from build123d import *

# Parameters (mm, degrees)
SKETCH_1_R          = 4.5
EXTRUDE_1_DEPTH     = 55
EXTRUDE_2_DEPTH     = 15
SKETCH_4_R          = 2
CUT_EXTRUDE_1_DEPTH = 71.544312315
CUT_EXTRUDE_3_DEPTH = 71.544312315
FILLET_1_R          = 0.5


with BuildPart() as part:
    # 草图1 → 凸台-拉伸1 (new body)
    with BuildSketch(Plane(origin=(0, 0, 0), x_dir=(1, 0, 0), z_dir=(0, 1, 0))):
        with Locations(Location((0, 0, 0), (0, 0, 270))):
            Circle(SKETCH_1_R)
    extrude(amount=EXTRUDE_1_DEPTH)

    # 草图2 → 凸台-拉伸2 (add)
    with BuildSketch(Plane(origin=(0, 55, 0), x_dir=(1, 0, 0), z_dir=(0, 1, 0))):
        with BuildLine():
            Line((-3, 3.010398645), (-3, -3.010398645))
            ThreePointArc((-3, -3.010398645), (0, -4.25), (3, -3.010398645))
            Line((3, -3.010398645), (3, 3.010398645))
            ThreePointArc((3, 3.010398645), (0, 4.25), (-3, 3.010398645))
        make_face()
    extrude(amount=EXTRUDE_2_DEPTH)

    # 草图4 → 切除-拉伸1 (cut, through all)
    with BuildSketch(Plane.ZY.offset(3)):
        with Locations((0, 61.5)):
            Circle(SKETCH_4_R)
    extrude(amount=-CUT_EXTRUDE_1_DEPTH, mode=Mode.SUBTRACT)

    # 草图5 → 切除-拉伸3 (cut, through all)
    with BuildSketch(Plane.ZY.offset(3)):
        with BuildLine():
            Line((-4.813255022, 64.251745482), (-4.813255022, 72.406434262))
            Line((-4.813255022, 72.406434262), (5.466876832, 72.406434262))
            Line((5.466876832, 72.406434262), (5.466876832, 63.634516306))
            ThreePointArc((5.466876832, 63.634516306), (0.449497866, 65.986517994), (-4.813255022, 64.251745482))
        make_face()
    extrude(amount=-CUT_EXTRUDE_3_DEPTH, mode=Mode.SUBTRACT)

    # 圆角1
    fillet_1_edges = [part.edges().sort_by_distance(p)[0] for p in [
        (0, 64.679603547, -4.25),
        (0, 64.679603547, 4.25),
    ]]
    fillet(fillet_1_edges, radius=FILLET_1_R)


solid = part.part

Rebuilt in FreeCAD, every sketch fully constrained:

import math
import FreeCAD as App
import Part
import Sketcher
Q = App.Units.Quantity


def edges_at(feature, points):
    """Names of the edges that pass closest to the given points."""
    edges = feature.Shape.Edges
    near = lambda p: min(range(len(edges)), key=lambda i: edges[i].distToShape(Part.Vertex(*p))[0])
    return sorted({f"Edge{near(p) + 1}" for p in points})

doc = App.newDocument("Part")
params = doc.addObject("Spreadsheet::Sheet", "Params")
for row, (alias, value) in enumerate([
    ("sketch1_diameter", "9 mm"),
    ("pad1_length", "55 mm"),
    ("sketch2_radius", "4.25 mm"),
    ("pad2_length", "15 mm"),
    ("sketch3_diameter", "4 mm"),
    ("sketch4_radius", "7.5 mm"),
    ("fillet_radius", "0.5 mm"),
], start=1):
    params.set(f"A{row}", alias)
    params.set(f"B{row}", "=" + value)
    params.setAlias(f"B{row}", alias)

body = doc.addObject("PartDesign::Body", "Body")

sketch1 = doc.addObject("Sketcher::SketchObject", "Sketch")
body.addObject(sketch1)
sketch1.AttachmentSupport = (doc.XZ_Plane, [""])
sketch1.MapMode = "FlatFace"
sketch1.addGeometry(Part.Circle(App.Vector(0, 0, 0), App.Vector(0, 0, 1), 4.5), False)
sketch1.addConstraint([
    Sketcher.Constraint("Coincident", 0, 3, -1, 1),
    Sketcher.Constraint("Diameter", 0, Q("9 mm")),
])
sketch1.setExpression("Constraints[1]", "Params.sketch1_diameter")
pad1 = doc.addObject("PartDesign::Pad", "Pad")
body.addObject(pad1)
pad1.Profile = sketch1
pad1.setExpression("Length", "Params.pad1_length")
pad1.Reversed = True

sketch2 = doc.addObject("Sketcher::SketchObject", "Sketch001")
body.addObject(sketch2)
sketch2.AttachmentSupport = (doc.XZ_Plane, [""])
sketch2.MapMode = "FlatFace"
sketch2.AttachmentOffset = App.Placement(App.Vector(0, 0, -55), App.Rotation())
sketch2.addGeometry([
    Part.LineSegment(App.Vector(-3, -3.010399, 0), App.Vector(-3, 3.010399, 0)),
    Part.ArcOfCircle(Part.Circle(App.Vector(0, 0, 0), App.Vector(0, 0, 1), 4.25), math.radians(45.099128), math.radians(134.900872)),
    Part.LineSegment(App.Vector(3, 3.010399, 0), App.Vector(3, -3.010399, 0)),
    Part.ArcOfCircle(Part.Circle(App.Vector(0, 0, 0), App.Vector(0, 0, 1), 4.25), math.radians(-134.900872), math.radians(-45.099128)),
], False)
sketch2.addConstraint([
    Sketcher.Constraint("Coincident", 0, 2, 1, 2),
    Sketcher.Constraint("Coincident", 1, 1, 2, 1),
    Sketcher.Constraint("Coincident", 2, 2, 3, 2),
    Sketcher.Constraint("Coincident", 3, 1, 0, 1),
    Sketcher.Constraint("Vertical", 0),
    Sketcher.Constraint("Vertical", 2),
    Sketcher.Constraint("Coincident", 1, 3, -1, 1),
    Sketcher.Constraint("Coincident", 3, 3, -1, 1),
    Sketcher.Constraint("Equal", 1, 3),
    Sketcher.Constraint("Horizontal", 0, 2, 1, 1),
    Sketcher.Constraint("Radius", 1, Q("4.25 mm")),
    Sketcher.Constraint("DistanceX", 0, 2, -1, 1, Q("3 mm")),
])
sketch2.setExpression("Constraints[10]", "Params.sketch2_radius")
pad2 = doc.addObject("PartDesign::Pad", "Pad001")
body.addObject(pad2)
pad2.Profile = sketch2
pad2.setExpression("Length", "Params.pad2_length")
pad2.Reversed = True

sketch3 = doc.addObject("Sketcher::SketchObject", "Sketch002")
body.addObject(sketch3)
sketch3.AttachmentSupport = (doc.YZ_Plane, [""])
sketch3.MapMode = "FlatFace"
sketch3.AttachmentOffset = App.Placement(App.Vector(0, 0, -3), App.Rotation())
sketch3.addGeometry(Part.Circle(App.Vector(61.5, 0, 0), App.Vector(0, 0, 1), 2), False)
sketch3.addConstraint([
    Sketcher.Constraint("PointOnObject", 0, 3, -1),
    Sketcher.Constraint("Diameter", 0, Q("4 mm")),
    Sketcher.Constraint("DistanceX", -1, 1, 0, 3, Q("61.5 mm")),
])
sketch3.setExpression("Constraints[1]", "Params.sketch3_diameter")
pocket1 = doc.addObject("PartDesign::Pocket", "Pocket")
body.addObject(pocket1)
pocket1.Profile = sketch3
pocket1.Type = "ThroughAll"
pocket1.Reversed = True

sketch4 = doc.addObject("Sketcher::SketchObject", "Sketch003")
body.addObject(sketch4)
sketch4.AttachmentSupport = (doc.YZ_Plane, [""])
sketch4.MapMode = "FlatFace"
sketch4.AttachmentOffset = App.Placement(App.Vector(0, 0, -3), App.Rotation())
sketch4.addGeometry([
    Part.LineSegment(App.Vector(72.406434, -4.813255, 0), App.Vector(64.251745, -4.813255, 0)),
    Part.ArcOfCircle(Part.Circle(App.Vector(58.5, 0, 0), App.Vector(0, 0, 1), 7.5), math.radians(-39.923732), math.radians(46.795672)),
    Part.LineSegment(App.Vector(63.634516, 5.466877, 0), App.Vector(72.406434, 5.466877, 0)),
    Part.LineSegment(App.Vector(72.406434, 5.466877, 0), App.Vector(72.406434, -4.813255, 0)),
], False)
sketch4.addConstraint([
    Sketcher.Constraint("Coincident", 0, 2, 1, 1),
    Sketcher.Constraint("Coincident", 1, 2, 2, 1),
    Sketcher.Constraint("Coincident", 2, 2, 3, 1),
    Sketcher.Constraint("Coincident", 3, 2, 0, 1),
    Sketcher.Constraint("Horizontal", 0),
    Sketcher.Constraint("Horizontal", 2),
    Sketcher.Constraint("Vertical", 3),
    Sketcher.Constraint("PointOnObject", 1, 3, -1),
    Sketcher.Constraint("Radius", 1, Q("7.5 mm")),
    Sketcher.Constraint("DistanceX", -1, 1, 1, 3, Q("58.5 mm")),
    Sketcher.Constraint("DistanceX", 0, 2, 0, 1, Q("8.154689 mm")),
    Sketcher.Constraint("DistanceY", 3, 2, 3, 1, Q("10.280132 mm")),
    Sketcher.Constraint("DistanceX", 2, 1, 2, 2, Q("8.771918 mm")),
])
sketch4.setExpression("Constraints[8]", "Params.sketch4_radius")
pocket2 = doc.addObject("PartDesign::Pocket", "Pocket001")
body.addObject(pocket2)
pocket2.Profile = sketch4
pocket2.Type = "ThroughAll"
pocket2.Reversed = True
doc.recompute()

fillet = doc.addObject("PartDesign::Fillet", "Fillet")
body.addObject(fillet)
fillet.Base = (pocket2, edges_at(pocket2, [(0, 64.68, -4.25), (0, 64.68, 4.25)]))
fillet.setExpression("Radius", "Params.fillet_radius")

doc.recompute()
